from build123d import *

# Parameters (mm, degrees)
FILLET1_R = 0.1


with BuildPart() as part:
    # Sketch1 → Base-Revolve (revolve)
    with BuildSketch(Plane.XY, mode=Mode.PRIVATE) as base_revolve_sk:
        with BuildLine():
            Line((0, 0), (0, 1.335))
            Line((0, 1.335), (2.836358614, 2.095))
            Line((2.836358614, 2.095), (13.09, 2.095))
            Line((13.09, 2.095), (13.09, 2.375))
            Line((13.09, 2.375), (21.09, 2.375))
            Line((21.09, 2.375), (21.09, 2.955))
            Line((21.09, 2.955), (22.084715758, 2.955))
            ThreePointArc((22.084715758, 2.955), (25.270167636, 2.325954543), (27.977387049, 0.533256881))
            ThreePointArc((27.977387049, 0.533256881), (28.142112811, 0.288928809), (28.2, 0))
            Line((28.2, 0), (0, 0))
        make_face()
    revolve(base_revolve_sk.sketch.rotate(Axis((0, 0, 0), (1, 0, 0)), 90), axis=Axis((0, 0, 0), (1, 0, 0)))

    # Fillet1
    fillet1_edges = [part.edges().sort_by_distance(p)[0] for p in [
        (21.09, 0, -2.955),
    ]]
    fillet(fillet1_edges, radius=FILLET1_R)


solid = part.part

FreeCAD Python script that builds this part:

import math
import FreeCAD as App
import Part
import Sketcher
from FreeCAD import Vector
Q = App.Units.Quantity


def edges_at(feature, points):
    """Names of the edges that pass closest to the given points."""
    edges = feature.Shape.Edges
    near = lambda p: min(range(len(edges)), key=lambda i: edges[i].distToShape(Part.Vertex(*p))[0])
    return sorted({f"Edge{near(p) + 1}" for p in points})

doc = App.newDocument("Part")
body = doc.addObject("PartDesign::Body", "Body")

sketch1 = body.newObject("Sketcher::SketchObject", "Sketch")
sketch1.AttachmentSupport = (doc.getObject("XY_Plane"), [""])
sketch1.MapMode = "FlatFace"
sketch1.addGeometry([
    Part.LineSegment(Vector(0, 1.33, 0), Vector(0, 0, 0)),
    Part.LineSegment(Vector(0, 0, 0), Vector(28.2, 0, 0)),
    Part.ArcOfCircle(Part.Circle(Vector(27.45, 0, 0), Vector(0, 0, 1), 0.75), math.radians(0), math.radians(45)),
    Part.ArcOfCircle(Part.Circle(Vector(22.08, -5.43, 0), Vector(0, 0, 1), 8.38), math.radians(45), math.radians(90)),
    Part.LineSegment(Vector(22.08, 2.96, 0), Vector(21.09, 2.96, 0)),
    Part.LineSegment(Vector(21.09, 2.96, 0), Vector(21.09, 2.38, 0)),
    Part.LineSegment(Vector(21.09, 2.38, 0), Vector(13.09, 2.38, 0)),
    Part.LineSegment(Vector(13.09, 2.38, 0), Vector(13.09, 2.1, 0)),
    Part.LineSegment(Vector(13.09, 2.1, 0), Vector(2.84, 2.1, 0)),
    Part.LineSegment(Vector(2.84, 2.1, 0), Vector(0, 1.33, 0)),
], False)
sketch1.addConstraint([
    Sketcher.Constraint("Coincident", 0, 2, 1, 1),
    Sketcher.Constraint("Coincident", 1, 2, 2, 1),
    Sketcher.Constraint("Tangent", 2, 2, 3, 1),
    Sketcher.Constraint("Tangent", 3, 2, 4, 1),
    Sketcher.Constraint("Coincident", 4, 2, 5, 1),
    Sketcher.Constraint("Coincident", 5, 2, 6, 1),
    Sketcher.Constraint("Coincident", 6, 2, 7, 1),
    Sketcher.Constraint("Coincident", 7, 2, 8, 1),
    Sketcher.Constraint("Coincident", 8, 2, 9, 1),
    Sketcher.Constraint("Coincident", 9, 2, 0, 1),
    Sketcher.Constraint("Vertical", 0),
    Sketcher.Constraint("Horizontal", 1),
    Sketcher.Constraint("Horizontal", 4),
    Sketcher.Constraint("Vertical", 5),
    Sketcher.Constraint("Horizontal", 6),
    Sketcher.Constraint("Vertical", 7),
    Sketcher.Constraint("Horizontal", 8),
    Sketcher.Constraint("Coincident", 0, 2, -1, 1),
    Sketcher.Constraint("PointOnObject", 2, 3, -1),
    Sketcher.Constraint("DistanceX", 6, 2, 6, 1, 8.0),
    Sketcher.Constraint("Angle", 9, Q("-165 deg")),
    Sketcher.Constraint("Radius", 2, 0.75),
    Sketcher.Constraint("Radius", 3, 8.38),
    Sketcher.Constraint("DistanceX", 1, 1, 1, 2, 28.2),
    Sketcher.Constraint("DistanceY", 5, 2, 5, 1, 0.58),
    Sketcher.Constraint("DistanceY", 7, 2, 7, 1, 0.28),
    Sketcher.Constraint("DistanceY", 0, 2, 0, 1, 1.335),
    Sketcher.Constraint("DistanceX", -1, 1, 4, 2, 21.09),
    Sketcher.Constraint("DistanceY", 9, 2, 8, 2, 0.76),
])
revolution = body.newObject("PartDesign::Revolution", "Revolution")
revolution.Profile = sketch1
revolution.ReferenceAxis = (sketch1, ["H_Axis"])
revolution.Angle = 360
doc.recompute()

fillet = body.newObject("PartDesign::Fillet", "Fillet")
fillet.Base = (revolution, edges_at(revolution, [(21.09, 0, -2.955)]))
fillet.Radius = 0.1

doc.recompute()
